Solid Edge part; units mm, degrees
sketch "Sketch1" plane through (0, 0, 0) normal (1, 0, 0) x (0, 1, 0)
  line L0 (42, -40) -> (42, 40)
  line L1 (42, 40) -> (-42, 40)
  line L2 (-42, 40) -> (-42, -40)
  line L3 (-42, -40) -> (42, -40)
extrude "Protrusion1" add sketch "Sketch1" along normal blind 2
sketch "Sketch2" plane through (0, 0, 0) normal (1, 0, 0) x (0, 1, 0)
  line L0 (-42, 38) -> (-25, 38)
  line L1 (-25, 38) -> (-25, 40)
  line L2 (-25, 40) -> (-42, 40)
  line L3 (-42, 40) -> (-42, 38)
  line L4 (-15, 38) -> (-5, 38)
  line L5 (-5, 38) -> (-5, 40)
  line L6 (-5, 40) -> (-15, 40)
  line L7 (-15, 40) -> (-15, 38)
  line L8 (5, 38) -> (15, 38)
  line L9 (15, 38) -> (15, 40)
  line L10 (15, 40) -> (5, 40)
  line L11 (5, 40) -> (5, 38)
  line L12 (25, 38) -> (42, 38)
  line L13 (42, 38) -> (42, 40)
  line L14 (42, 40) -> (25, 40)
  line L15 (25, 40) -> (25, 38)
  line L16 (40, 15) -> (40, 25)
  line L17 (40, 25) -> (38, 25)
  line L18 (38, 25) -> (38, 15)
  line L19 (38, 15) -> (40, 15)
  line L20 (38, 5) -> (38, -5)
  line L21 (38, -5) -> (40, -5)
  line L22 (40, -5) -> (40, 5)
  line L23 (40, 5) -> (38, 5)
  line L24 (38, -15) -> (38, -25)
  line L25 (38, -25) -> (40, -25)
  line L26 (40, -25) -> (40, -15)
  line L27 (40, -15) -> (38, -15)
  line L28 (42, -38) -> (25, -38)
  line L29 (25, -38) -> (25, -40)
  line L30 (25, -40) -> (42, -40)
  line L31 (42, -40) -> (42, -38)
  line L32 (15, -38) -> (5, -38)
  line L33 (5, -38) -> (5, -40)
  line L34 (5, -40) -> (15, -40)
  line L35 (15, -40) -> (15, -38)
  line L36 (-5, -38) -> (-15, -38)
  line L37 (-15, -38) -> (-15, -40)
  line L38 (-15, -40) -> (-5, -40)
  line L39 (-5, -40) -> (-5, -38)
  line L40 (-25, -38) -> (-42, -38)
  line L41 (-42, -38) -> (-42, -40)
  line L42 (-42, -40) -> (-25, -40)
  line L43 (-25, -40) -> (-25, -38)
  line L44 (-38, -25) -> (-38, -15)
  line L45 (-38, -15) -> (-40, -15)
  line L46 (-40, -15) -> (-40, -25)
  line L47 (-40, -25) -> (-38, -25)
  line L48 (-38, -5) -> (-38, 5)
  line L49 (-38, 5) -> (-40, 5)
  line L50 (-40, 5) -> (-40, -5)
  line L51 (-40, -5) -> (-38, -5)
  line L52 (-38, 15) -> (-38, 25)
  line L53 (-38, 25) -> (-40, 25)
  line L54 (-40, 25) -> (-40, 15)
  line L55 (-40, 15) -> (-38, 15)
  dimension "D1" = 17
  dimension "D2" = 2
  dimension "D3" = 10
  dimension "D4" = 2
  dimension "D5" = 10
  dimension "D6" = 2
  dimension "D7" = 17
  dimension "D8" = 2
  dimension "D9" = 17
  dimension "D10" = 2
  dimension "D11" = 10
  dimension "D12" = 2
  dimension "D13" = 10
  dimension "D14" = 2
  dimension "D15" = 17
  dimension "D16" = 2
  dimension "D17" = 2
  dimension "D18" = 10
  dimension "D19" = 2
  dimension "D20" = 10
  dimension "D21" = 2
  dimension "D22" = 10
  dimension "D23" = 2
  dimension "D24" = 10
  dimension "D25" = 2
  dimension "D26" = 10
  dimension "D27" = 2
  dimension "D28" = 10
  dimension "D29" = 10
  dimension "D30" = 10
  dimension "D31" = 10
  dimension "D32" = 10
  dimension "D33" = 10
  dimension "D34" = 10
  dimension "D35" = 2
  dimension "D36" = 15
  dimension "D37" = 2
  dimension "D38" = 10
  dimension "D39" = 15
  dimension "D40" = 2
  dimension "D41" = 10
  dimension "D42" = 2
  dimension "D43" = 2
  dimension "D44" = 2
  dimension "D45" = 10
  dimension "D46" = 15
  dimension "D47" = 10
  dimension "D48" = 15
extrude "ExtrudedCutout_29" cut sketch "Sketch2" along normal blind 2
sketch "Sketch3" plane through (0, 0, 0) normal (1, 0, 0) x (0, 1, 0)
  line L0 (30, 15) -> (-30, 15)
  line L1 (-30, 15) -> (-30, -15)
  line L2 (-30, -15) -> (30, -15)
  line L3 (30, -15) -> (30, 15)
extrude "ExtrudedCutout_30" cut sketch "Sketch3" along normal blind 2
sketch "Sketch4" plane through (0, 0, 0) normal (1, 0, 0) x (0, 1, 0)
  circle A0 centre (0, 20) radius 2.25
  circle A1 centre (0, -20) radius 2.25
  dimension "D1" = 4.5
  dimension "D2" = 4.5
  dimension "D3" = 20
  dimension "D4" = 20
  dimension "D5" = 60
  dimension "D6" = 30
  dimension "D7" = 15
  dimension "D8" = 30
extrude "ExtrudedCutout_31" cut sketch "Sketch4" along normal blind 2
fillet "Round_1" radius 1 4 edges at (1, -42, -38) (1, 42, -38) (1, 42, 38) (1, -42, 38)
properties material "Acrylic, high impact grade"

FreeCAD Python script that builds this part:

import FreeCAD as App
import Part
import Sketcher


def edges_at(feature, points):
    """Names of the edges that pass closest to the given points."""
    edges = feature.Shape.Edges
    near = lambda p: min(range(len(edges)), key=lambda i: edges[i].distToShape(Part.Vertex(*p))[0])
    return sorted({f"Edge{near(p) + 1}" for p in points})


def add_polygon(sketch, points):
    """Adds a closed chain of lines whose ends are joined by coincident constraints."""
    first, n = sketch.GeometryCount, len(points)
    for a, b in zip(points, points[1:] + points[:1]):
        sketch.addGeometry(Part.LineSegment(App.Vector(*a, 0), App.Vector(*b, 0)), False)
    for i in range(n):
        sketch.addConstraint(Sketcher.Constraint("Coincident", first + i, 2, first + (i + 1) % n, 1))

doc = App.newDocument("Part")
body = doc.addObject("PartDesign::Body", "Body")

sketch1 = doc.addObject("Sketcher::SketchObject", "Sketch")
body.addObject(sketch1)
sketch1.AttachmentSupport = (doc.YZ_Plane, [""])
sketch1.MapMode = "FlatFace"
add_polygon(sketch1, [(-42, -40), (42, -40), (42, 40), (-42, 40)])
sketch1.addConstraint(Sketcher.Constraint("Horizontal", 0))
sketch1.addConstraint(Sketcher.Constraint("Vertical", 1))
sketch1.addConstraint(Sketcher.Constraint("Horizontal", 2))
sketch1.addConstraint(Sketcher.Constraint("Vertical", 3))
sketch1.addConstraint(Sketcher.Constraint("Symmetric", 0, 2, 2, 2, -1, 1))
sketch1.addConstraint(Sketcher.Constraint("DistanceX", 0, 1, 0, 2, 84.0))
sketch1.addConstraint(Sketcher.Constraint("DistanceY", 1, 1, 1, 2, 80.0))
pad1 = doc.addObject("PartDesign::Pad", "Pad")
body.addObject(pad1)
pad1.Profile = sketch1
pad1.Length = 2

sketch2 = doc.addObject("Sketcher::SketchObject", "Sketch001")
body.addObject(sketch2)
sketch2.AttachmentSupport = (doc.YZ_Plane, [""])
sketch2.MapMode = "FlatFace"
add_polygon(sketch2, [(-42, 40), (-42, 38), (-25, 38), (-25, 40)])
add_polygon(sketch2, [(-15, 40), (-15, 38), (-5, 38), (-5, 40)])
add_polygon(sketch2, [(5, 40), (5, 38), (15, 38), (15, 40)])
add_polygon(sketch2, [(25, 40), (25, 38), (42, 38), (42, 40)])
add_polygon(sketch2, [(38, 15), (40, 15), (40, 25), (38, 25)])
add_polygon(sketch2, [(40, 5), (38, 5), (38, -5), (40, -5)])
add_polygon(sketch2, [(40, -15), (38, -15), (38, -25), (40, -25)])
add_polygon(sketch2, [(42, -40), (42, -38), (25, -38), (25, -40)])
add_polygon(sketch2, [(15, -40), (15, -38), (5, -38), (5, -40)])
add_polygon(sketch2, [(-5, -40), (-5, -38), (-15, -38), (-15, -40)])
add_polygon(sketch2, [(-25, -40), (-25, -38), (-42, -38), (-42, -40)])
add_polygon(sketch2, [(-40, -25), (-38, -25), (-38, -15), (-40, -15)])
add_polygon(sketch2, [(-40, -5), (-38, -5), (-38, 5), (-40, 5)])
add_polygon(sketch2, [(-40, 15), (-38, 15), (-38, 25), (-40, 25)])
sketch2.addConstraint(Sketcher.Constraint("Vertical", 0))
sketch2.addConstraint(Sketcher.Constraint("Horizontal", 1))
sketch2.addConstraint(Sketcher.Constraint("Vertical", 2))
sketch2.addConstraint(Sketcher.Constraint("Horizontal", 3))
sketch2.addConstraint(Sketcher.Constraint("Vertical", 4))
sketch2.addConstraint(Sketcher.Constraint("Horizontal", 5))
sketch2.addConstraint(Sketcher.Constraint("Vertical", 6))
sketch2.addConstraint(Sketcher.Constraint("Horizontal", 7))
sketch2.addConstraint(Sketcher.Constraint("Vertical", 8))
sketch2.addConstraint(Sketcher.Constraint("Horizontal", 9))
sketch2.addConstraint(Sketcher.Constraint("Vertical", 10))
sketch2.addConstraint(Sketcher.Constraint("Horizontal", 11))
sketch2.addConstraint(Sketcher.Constraint("Vertical", 12))
sketch2.addConstraint(Sketcher.Constraint("Horizontal", 13))
sketch2.addConstraint(Sketcher.Constraint("Vertical", 14))
sketch2.addConstraint(Sketcher.Constraint("Horizontal", 15))
sketch2.addConstraint(Sketcher.Constraint("Horizontal", 16))
sketch2.addConstraint(Sketcher.Constraint("Vertical", 17))
sketch2.addConstraint(Sketcher.Constraint("Horizontal", 18))
sketch2.addConstraint(Sketcher.Constraint("Vertical", 19))
sketch2.addConstraint(Sketcher.Constraint("Horizontal", 20))
sketch2.addConstraint(Sketcher.Constraint("Vertical", 21))
sketch2.addConstraint(Sketcher.Constraint("Horizontal", 22))
sketch2.addConstraint(Sketcher.Constraint("Vertical", 23))
sketch2.addConstraint(Sketcher.Constraint("Horizontal", 24))
sketch2.addConstraint(Sketcher.Constraint("Vertical", 25))
sketch2.addConstraint(Sketcher.Constraint("Horizontal", 26))
sketch2.addConstraint(Sketcher.Constraint("Vertical", 27))
sketch2.addConstraint(Sketcher.Constraint("Vertical", 28))
sketch2.addConstraint(Sketcher.Constraint("Horizontal", 29))
sketch2.addConstraint(Sketcher.Constraint("Vertical", 30))
sketch2.addConstraint(Sketcher.Constraint("Horizontal", 31))
sketch2.addConstraint(Sketcher.Constraint("Vertical", 32))
sketch2.addConstraint(Sketcher.Constraint("Horizontal", 33))
sketch2.addConstraint(Sketcher.Constraint("Vertical", 34))
sketch2.addConstraint(Sketcher.Constraint("Horizontal", 35))
sketch2.addConstraint(Sketcher.Constraint("Vertical", 36))
sketch2.addConstraint(Sketcher.Constraint("Horizontal", 37))
sketch2.addConstraint(Sketcher.Constraint("Vertical", 38))
sketch2.addConstraint(Sketcher.Constraint("Horizontal", 39))
sketch2.addConstraint(Sketcher.Constraint("Vertical", 40))
sketch2.addConstraint(Sketcher.Constraint("Horizontal", 41))
sketch2.addConstraint(Sketcher.Constraint("Vertical", 42))
sketch2.addConstraint(Sketcher.Constraint("Horizontal", 43))
sketch2.addConstraint(Sketcher.Constraint("Horizontal", 44))
sketch2.addConstraint(Sketcher.Constraint("Vertical", 45))
sketch2.addConstraint(Sketcher.Constraint("Horizontal", 46))
sketch2.addConstraint(Sketcher.Constraint("Vertical", 47))
sketch2.addConstraint(Sketcher.Constraint("Horizontal", 48))
sketch2.addConstraint(Sketcher.Constraint("Vertical", 49))
sketch2.addConstraint(Sketcher.Constraint("Horizontal", 50))
sketch2.addConstraint(Sketcher.Constraint("Vertical", 51))
sketch2.addConstraint(Sketcher.Constraint("Horizontal", 52))
sketch2.addConstraint(Sketcher.Constraint("Vertical", 53))
sketch2.addConstraint(Sketcher.Constraint("Horizontal", 54))
sketch2.addConstraint(Sketcher.Constraint("Vertical", 55))
sketch2.addConstraint(Sketcher.Constraint("Symmetric", 0, 2, 28, 2, -1, 1))
sketch2.addConstraint(Sketcher.Constraint("Symmetric", 2, 2, 30, 2, -1, 1))
sketch2.addConstraint(Sketcher.Constraint("Symmetric", 4, 2, 32, 2, -1, 1))
sketch2.addConstraint(Sketcher.Constraint("Symmetric", 6, 2, 34, 2, -1, 1))
sketch2.addConstraint(Sketcher.Constraint("Symmetric", 8, 2, 36, 2, -1, 1))
sketch2.addConstraint(Sketcher.Constraint("Symmetric", 10, 2, 38, 2, -1, 1))
sketch2.addConstraint(Sketcher.Constraint("Symmetric", 12, 2, 40, 2, -1, 1))
sketch2.addConstraint(Sketcher.Constraint("Symmetric", 14, 2, 42, 2, -1, 1))
sketch2.addConstraint(Sketcher.Constraint("Symmetric", 18, 2, 44, 2, -1, 1))
sketch2.addConstraint(Sketcher.Constraint("Symmetric", 16, 2, 46, 2, -1, 1))
sketch2.addConstraint(Sketcher.Constraint("Symmetric", 20, 2, 48, 2, -1, 1))
sketch2.addConstraint(Sketcher.Constraint("Symmetric", 22, 2, 50, 2, -1, 1))
sketch2.addConstraint(Sketcher.Constraint("Symmetric", 24, 2, 52, 2, -1, 1))
sketch2.addConstraint(Sketcher.Constraint("Symmetric", 26, 2, 54, 2, -1, 1))
sketch2.addConstraint(Sketcher.Constraint("Symmetric", 5, 2, 8, 2, -2))
sketch2.addConstraint(Sketcher.Constraint("Symmetric", 7, 2, 10, 2, -2))
sketch2.addConstraint(Sketcher.Constraint("Symmetric", 1, 2, 12, 2, -2))
sketch2.addConstraint(Sketcher.Constraint("Symmetric", 3, 2, 14, 2, -2))
sketch2.addConstraint(Sketcher.Constraint("Symmetric", 25, 2, 44, 2, -2))
sketch2.addConstraint(Sketcher.Constraint("Symmetric", 27, 2, 46, 2, -2))
sketch2.addConstraint(Sketcher.Constraint("Horizontal", 1, 2, 4, 2))
sketch2.addConstraint(Sketcher.Constraint("Horizontal", 3, 2, 6, 2))
sketch2.addConstraint(Sketcher.Constraint("Horizontal", 22, 2, 48, 2))
sketch2.addConstraint(Sketcher.Constraint("Vertical", 19, 2, 20, 2))
sketch2.addConstraint(Sketcher.Constraint("Vertical", 17, 2, 22, 2))
sketch2.addConstraint(Sketcher.Constraint("Equal", 54, 0))
sketch2.addConstraint(Sketcher.Constraint("Equal", 39, 17))
sketch2.addConstraint(Sketcher.Constraint("Equal", 19, 21))
sketch2.addConstraint(Sketcher.Constraint("DistanceX", 1, 1, 1, 2, 17.0))
sketch2.addConstraint(Sketcher.Constraint("DistanceX", 5, 1, 5, 2, 10.0))
sketch2.addConstraint(Sketcher.Constraint("DistanceX", 16, 1, 16, 2, 2.0))
sketch2.addConstraint(Sketcher.Constraint("DistanceX", 0, 2, -1, 1, 42.0))
sketch2.addConstraint(Sketcher.Constraint("DistanceY", -1, 1, 0, 2, 38.0))
sketch2.addConstraint(Sketcher.Constraint("DistanceX", 4, 2, -1, 1, 15.0))
sketch2.addConstraint(Sketcher.Constraint("DistanceX", -1, 1, 16, 2, 40.0))
sketch2.addConstraint(Sketcher.Constraint("DistanceY", -1, 1, 16, 2, 15.0))
pocket1 = doc.addObject("PartDesign::Pocket", "Pocket")
body.addObject(pocket1)
pocket1.Profile = sketch2
pocket1.Length = 2
pocket1.Reversed = True

sketch3 = doc.addObject("Sketcher::SketchObject", "Sketch002")
body.addObject(sketch3)
sketch3.AttachmentSupport = (doc.YZ_Plane, [""])
sketch3.MapMode = "FlatFace"
add_polygon(sketch3, [(30, -15), (30, 15), (-30, 15), (-30, -15)])
sketch3.addConstraint(Sketcher.Constraint("Vertical", 0))
sketch3.addConstraint(Sketcher.Constraint("Horizontal", 1))
sketch3.addConstraint(Sketcher.Constraint("Vertical", 2))
sketch3.addConstraint(Sketcher.Constraint("Horizontal", 3))
sketch3.addConstraint(Sketcher.Constraint("Symmetric", 0, 2, 2, 2, -1, 1))
sketch3.addConstraint(Sketcher.Constraint("DistanceX", 1, 2, 1, 1, 60.0))
sketch3.addConstraint(Sketcher.Constraint("DistanceY", 0, 1, 0, 2, 30.0))
pocket2 = doc.addObject("PartDesign::Pocket", "Pocket001")
body.addObject(pocket2)
pocket2.Profile = sketch3
pocket2.Length = 2
pocket2.Reversed = True

sketch4 = doc.addObject("Sketcher::SketchObject", "Sketch003")
body.addObject(sketch4)
sketch4.AttachmentSupport = (doc.YZ_Plane, [""])
sketch4.MapMode = "FlatFace"
sketch4.addGeometry(Part.Circle(App.Vector(0, 20, 0), App.Vector(0, 0, 1), 2.2), False)
sketch4.addGeometry(Part.Circle(App.Vector(0, -20, 0), App.Vector(0, 0, 1), 2.2), False)
sketch4.addConstraint(Sketcher.Constraint("Equal", 0, 1))
sketch4.addConstraint(Sketcher.Constraint("Symmetric", 0, 3, 1, 3, -1, 1))
sketch4.addConstraint(Sketcher.Constraint("PointOnObject", 0, 3, -2))
sketch4.addConstraint(Sketcher.Constraint("Diameter", 0, 4.5))
sketch4.addConstraint(Sketcher.Constraint("DistanceY", -1, 1, 0, 3, 20.0))
pocket3 = doc.addObject("PartDesign::Pocket", "Pocket002")
body.addObject(pocket3)
pocket3.Profile = sketch4
pocket3.Length = 2
pocket3.Reversed = True
doc.recompute()

fillet = doc.addObject("PartDesign::Fillet", "Fillet")
body.addObject(fillet)
fillet.Base = (pocket3, edges_at(pocket3, [
    (1, -42, -38),
    (1, 42, -38),
    (1, 42, 38),
    (1, -42, 38),
]))
fillet.Radius = 1

doc.recompute()
